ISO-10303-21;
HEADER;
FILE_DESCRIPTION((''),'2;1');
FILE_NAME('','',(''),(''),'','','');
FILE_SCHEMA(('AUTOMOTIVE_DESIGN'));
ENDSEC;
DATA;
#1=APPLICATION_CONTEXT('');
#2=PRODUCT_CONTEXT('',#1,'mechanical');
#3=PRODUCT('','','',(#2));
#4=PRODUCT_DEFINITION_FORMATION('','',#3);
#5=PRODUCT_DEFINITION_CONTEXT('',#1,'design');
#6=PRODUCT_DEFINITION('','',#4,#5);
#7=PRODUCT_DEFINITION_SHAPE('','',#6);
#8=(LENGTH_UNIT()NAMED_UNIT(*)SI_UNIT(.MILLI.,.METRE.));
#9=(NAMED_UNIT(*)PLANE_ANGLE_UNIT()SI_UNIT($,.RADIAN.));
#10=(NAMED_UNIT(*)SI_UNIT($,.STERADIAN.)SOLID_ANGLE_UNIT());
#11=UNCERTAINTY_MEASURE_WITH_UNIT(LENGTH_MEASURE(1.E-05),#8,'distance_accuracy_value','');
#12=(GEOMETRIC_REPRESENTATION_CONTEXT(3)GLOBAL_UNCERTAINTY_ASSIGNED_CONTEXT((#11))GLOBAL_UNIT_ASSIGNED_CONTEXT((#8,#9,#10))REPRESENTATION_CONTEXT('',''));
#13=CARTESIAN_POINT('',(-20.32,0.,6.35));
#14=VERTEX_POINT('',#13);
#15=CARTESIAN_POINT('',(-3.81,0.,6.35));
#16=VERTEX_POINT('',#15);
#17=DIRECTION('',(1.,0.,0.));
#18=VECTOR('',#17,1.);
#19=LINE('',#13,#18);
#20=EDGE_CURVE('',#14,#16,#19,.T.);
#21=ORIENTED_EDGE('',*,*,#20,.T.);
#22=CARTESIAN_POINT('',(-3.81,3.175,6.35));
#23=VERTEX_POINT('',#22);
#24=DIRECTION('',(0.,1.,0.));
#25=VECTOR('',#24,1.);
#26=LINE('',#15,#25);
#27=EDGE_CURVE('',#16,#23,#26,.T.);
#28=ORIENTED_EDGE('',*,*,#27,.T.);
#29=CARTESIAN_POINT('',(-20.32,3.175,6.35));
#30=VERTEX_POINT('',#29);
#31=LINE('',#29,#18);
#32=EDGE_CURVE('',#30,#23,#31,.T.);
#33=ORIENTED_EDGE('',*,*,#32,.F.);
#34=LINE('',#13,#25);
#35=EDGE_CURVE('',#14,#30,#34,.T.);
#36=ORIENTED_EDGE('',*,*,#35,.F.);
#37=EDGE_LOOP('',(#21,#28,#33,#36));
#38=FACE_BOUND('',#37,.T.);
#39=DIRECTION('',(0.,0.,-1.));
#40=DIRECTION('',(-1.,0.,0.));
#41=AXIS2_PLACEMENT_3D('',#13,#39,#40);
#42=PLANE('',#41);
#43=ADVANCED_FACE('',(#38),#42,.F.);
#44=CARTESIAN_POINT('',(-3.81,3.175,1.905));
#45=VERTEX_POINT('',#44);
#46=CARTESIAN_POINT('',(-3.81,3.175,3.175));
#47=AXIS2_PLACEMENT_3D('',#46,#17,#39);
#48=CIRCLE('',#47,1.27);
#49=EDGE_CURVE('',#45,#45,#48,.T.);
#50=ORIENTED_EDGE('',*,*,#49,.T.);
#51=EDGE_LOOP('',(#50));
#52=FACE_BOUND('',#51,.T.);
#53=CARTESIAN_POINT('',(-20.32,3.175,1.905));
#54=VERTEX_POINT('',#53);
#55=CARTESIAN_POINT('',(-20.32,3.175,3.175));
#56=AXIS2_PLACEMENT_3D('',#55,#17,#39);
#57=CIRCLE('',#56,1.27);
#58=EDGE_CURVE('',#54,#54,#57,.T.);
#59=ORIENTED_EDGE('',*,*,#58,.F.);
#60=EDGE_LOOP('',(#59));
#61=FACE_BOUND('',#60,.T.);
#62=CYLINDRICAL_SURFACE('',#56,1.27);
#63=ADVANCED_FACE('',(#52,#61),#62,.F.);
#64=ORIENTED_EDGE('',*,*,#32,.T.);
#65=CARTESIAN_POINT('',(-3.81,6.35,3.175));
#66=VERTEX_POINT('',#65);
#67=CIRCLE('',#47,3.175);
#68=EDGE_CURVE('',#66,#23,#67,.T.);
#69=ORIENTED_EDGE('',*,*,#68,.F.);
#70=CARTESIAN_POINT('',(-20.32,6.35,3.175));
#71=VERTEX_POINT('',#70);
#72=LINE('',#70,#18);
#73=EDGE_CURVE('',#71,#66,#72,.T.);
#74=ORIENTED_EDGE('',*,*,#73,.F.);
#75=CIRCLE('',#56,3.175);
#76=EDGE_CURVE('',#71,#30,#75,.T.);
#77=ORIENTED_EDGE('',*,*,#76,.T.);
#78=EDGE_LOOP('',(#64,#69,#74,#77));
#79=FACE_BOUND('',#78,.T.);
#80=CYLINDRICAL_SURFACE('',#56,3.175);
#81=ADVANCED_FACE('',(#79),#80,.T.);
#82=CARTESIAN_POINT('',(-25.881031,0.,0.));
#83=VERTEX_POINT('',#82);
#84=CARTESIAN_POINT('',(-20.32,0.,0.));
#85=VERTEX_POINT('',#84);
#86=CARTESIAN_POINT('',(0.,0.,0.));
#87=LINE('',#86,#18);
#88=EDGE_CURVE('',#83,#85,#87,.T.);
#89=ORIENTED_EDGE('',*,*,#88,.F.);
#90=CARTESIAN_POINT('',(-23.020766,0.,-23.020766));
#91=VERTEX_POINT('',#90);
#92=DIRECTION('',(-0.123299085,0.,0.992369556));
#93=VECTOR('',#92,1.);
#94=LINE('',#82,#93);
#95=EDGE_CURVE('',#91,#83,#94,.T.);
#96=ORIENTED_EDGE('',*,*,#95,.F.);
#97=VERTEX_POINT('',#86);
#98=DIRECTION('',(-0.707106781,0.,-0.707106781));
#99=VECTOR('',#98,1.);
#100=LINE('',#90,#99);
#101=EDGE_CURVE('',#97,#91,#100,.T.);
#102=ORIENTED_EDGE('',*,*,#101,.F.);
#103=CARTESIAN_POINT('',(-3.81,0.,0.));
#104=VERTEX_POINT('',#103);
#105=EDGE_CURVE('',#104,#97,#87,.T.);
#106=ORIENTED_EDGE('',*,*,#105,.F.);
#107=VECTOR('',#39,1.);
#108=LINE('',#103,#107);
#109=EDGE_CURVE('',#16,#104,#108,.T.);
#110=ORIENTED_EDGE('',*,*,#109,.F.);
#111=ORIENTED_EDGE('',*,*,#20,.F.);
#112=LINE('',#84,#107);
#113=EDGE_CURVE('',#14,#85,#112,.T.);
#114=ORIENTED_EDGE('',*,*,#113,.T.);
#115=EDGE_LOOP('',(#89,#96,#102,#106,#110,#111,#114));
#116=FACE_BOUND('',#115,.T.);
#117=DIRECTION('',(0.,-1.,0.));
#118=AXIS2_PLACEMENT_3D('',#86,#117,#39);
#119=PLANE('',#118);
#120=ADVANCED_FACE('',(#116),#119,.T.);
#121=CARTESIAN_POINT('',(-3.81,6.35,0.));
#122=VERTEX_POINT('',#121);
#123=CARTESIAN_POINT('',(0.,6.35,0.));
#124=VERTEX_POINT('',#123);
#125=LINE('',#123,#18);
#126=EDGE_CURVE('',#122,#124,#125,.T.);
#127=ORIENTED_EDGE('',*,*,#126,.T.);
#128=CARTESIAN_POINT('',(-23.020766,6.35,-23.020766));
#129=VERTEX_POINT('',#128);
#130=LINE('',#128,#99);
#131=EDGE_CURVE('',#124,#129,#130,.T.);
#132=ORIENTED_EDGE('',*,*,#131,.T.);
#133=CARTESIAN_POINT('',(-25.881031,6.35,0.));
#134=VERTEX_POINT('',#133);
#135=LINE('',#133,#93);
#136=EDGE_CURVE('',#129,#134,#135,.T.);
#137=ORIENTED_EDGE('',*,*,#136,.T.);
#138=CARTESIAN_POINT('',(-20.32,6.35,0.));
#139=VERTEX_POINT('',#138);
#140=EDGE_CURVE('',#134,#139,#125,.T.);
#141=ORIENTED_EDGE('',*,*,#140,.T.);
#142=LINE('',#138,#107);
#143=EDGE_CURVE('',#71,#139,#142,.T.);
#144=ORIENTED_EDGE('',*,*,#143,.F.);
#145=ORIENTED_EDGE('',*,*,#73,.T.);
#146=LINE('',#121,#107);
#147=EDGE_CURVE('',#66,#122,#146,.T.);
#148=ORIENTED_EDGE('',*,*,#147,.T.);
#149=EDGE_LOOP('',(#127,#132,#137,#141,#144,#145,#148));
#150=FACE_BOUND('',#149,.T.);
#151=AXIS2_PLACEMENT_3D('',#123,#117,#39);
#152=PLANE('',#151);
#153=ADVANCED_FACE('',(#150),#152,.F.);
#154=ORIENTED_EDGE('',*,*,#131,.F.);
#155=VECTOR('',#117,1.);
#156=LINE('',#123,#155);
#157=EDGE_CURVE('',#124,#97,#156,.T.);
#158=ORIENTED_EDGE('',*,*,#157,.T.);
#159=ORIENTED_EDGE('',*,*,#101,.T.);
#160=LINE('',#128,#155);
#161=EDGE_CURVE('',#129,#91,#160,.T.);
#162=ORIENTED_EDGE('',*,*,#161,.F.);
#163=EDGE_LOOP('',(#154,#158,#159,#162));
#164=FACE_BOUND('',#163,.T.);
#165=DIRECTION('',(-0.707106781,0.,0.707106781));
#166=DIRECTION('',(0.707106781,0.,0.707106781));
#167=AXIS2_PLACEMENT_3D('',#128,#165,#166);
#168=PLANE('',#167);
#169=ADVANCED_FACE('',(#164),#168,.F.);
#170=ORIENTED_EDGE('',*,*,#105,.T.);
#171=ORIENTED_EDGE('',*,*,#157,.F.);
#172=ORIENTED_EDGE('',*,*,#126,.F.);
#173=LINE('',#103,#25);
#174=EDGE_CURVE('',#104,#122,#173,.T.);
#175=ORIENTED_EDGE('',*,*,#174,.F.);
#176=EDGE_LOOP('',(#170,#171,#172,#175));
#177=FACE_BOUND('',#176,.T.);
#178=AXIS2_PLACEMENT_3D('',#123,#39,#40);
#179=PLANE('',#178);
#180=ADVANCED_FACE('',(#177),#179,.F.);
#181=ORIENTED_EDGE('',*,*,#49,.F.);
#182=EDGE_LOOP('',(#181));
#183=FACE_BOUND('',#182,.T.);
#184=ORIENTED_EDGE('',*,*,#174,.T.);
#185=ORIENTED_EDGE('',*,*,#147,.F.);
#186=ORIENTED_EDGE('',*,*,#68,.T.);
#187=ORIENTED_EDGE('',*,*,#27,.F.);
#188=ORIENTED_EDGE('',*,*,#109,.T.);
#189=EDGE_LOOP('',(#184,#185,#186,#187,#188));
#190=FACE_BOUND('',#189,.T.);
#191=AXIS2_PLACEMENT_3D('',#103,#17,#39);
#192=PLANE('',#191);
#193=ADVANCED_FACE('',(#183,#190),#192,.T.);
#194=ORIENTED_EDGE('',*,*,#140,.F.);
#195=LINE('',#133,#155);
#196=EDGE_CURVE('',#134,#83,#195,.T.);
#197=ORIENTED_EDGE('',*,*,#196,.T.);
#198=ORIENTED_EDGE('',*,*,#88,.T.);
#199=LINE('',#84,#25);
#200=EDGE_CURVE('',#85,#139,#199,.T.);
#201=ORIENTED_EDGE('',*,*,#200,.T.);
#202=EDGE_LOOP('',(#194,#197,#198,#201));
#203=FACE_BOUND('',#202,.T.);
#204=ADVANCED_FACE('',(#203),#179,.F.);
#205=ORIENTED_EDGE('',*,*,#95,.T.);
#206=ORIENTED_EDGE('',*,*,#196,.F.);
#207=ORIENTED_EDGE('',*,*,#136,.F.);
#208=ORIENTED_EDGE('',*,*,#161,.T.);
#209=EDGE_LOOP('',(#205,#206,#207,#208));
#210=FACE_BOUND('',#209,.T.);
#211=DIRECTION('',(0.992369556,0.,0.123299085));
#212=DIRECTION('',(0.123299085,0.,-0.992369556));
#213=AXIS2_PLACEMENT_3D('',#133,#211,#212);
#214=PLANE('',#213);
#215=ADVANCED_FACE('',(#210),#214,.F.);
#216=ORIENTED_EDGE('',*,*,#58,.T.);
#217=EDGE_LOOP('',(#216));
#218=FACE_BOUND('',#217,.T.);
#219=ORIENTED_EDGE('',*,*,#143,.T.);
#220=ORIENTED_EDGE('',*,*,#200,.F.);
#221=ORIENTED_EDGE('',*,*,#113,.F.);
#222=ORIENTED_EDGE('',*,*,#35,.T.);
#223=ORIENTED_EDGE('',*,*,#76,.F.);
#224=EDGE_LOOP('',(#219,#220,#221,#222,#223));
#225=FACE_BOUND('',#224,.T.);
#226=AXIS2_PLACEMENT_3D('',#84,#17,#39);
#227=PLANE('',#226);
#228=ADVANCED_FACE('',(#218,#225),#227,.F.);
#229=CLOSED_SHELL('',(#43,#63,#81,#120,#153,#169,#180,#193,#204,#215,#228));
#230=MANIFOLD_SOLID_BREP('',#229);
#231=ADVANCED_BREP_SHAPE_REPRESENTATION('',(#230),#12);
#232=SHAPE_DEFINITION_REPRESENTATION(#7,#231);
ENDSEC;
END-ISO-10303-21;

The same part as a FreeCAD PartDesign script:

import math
import FreeCAD as App
import Part
import Sketcher

V = App.Vector
Q = App.Units.Quantity


def add_polygon(sketch, points):
    """Adds a closed chain of lines whose ends are joined by coincident constraints."""
    first, n = sketch.GeometryCount, len(points)
    for a, b in zip(points, points[1:] + points[:1]):
        sketch.addGeometry(Part.LineSegment(App.Vector(*a, 0), App.Vector(*b, 0)), False)
    for i in range(n):
        sketch.addConstraint(Sketcher.Constraint("Coincident", first + i, 2, first + (i + 1) % n, 1))

doc = App.newDocument("Part")
body = doc.addObject("PartDesign::Body", "Body")

sketch1 = body.newObject("Sketcher::SketchObject", "Sketch")
sketch1.AttachmentSupport = (doc.getObject("XZ_Plane"), [""])
sketch1.MapMode = "FlatFace"
add_polygon(sketch1, [(-23.020766, -23.020766), (-25.881031, 0), (0, 0)])
sketch1.addConstraint([
    Sketcher.Constraint("Horizontal", 1),
    Sketcher.Constraint("Coincident", 1, 2, -1, 1),
    Sketcher.Constraint("Angle", 2, Q("-135 deg")),
    Sketcher.Constraint("DistanceX", 1, 1, 1, 2, Q("25.881031 mm")),
    Sketcher.Constraint("Distance", 2, Q("32.55628 mm")),
])
pad1 = body.newObject("PartDesign::Pad", "Pad")
pad1.Profile = sketch1
pad1.Length = Q("0.25 in")
pad1.Reversed = True

sketch2 = body.newObject("Sketcher::SketchObject", "Sketch001")
sketch2.AttachmentSupport = (doc.getObject("YZ_Plane"), [""])
sketch2.MapMode = "FlatFace"
sketch2.AttachmentOffset = App.Placement(V(0, 0, -0.15 * 25.4), App.Rotation())
sketch2.addGeometry([
    Part.ArcOfCircle(Part.Circle(V(3.175, 3.175, 0), V(0, 0, 1), 3.175), math.radians(0), math.radians(90)),
    Part.LineSegment(V(3.175, 6.35, 0), V(0, 6.35, 0)),
    Part.LineSegment(V(0, 6.35, 0), V(0, 0, 0)),
    Part.LineSegment(V(0, 0, 0), V(6.35, 0, 0)),
    Part.LineSegment(V(6.35, 0, 0), V(6.35, 3.175, 0)),
    Part.Circle(V(3.175, 3.175, 0), V(0, 0, 1), 1.27),
], False)
sketch2.addConstraint([
    Sketcher.Constraint("Tangent", 0, 2, 1, 1),
    Sketcher.Constraint("Coincident", 1, 2, 2, 1),
    Sketcher.Constraint("Coincident", 2, 2, 3, 1),
    Sketcher.Constraint("Coincident", 3, 2, 4, 1),
    Sketcher.Constraint("Tangent", 4, 2, 0, 1),
    Sketcher.Constraint("Horizontal", 1),
    Sketcher.Constraint("Vertical", 2),
    Sketcher.Constraint("Horizontal", 3),
    Sketcher.Constraint("Vertical", 4),
    Sketcher.Constraint("Coincident", 2, 2, -1, 1),
    Sketcher.Constraint("Coincident", 5, 3, 0, 3),
    Sketcher.Constraint("Equal", 3, 2),
    Sketcher.Constraint("Diameter", 5, Q("0.1 in")),
    Sketcher.Constraint("Radius", 0, Q("0.125 in")),
    Sketcher.Constraint("DistanceX", 3, 1, 3, 2, Q("0.25 in")),
])
pad2 = body.newObject("PartDesign::Pad", "Pad001")
pad2.Profile = sketch2
pad2.Length = Q("0.65 in")
pad2.Reversed = True

doc.recompute()
